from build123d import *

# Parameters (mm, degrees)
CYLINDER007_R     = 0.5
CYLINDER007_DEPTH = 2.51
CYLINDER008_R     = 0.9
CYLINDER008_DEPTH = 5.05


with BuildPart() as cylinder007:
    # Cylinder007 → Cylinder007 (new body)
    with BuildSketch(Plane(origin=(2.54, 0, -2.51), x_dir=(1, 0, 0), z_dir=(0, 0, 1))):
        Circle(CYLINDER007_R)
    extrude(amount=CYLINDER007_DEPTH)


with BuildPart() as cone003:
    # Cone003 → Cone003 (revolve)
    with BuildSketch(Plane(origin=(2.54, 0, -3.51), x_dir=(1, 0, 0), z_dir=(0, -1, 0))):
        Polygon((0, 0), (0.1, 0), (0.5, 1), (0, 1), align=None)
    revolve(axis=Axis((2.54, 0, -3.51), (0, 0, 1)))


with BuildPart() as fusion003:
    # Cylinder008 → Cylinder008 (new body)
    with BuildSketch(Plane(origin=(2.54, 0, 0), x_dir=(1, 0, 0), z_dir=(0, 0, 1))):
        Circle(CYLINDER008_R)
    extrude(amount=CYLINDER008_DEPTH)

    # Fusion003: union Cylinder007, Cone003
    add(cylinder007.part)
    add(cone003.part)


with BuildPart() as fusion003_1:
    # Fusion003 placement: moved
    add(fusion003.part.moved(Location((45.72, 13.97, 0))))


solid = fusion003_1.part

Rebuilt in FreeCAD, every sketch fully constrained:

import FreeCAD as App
import Part
import Sketcher
from FreeCAD import Vector

doc = App.newDocument("Part")
params = doc.addObject("Spreadsheet::Sheet", "Params")
for row, (alias, value) in enumerate([
    ("sketch1_diameter", "1 mm"),
    ("pad1_length", "2.51 mm"),
    ("sketch2_height", "1 mm"),
    ("sketch2_width", "0.1 mm"),
    ("sketch2_width2", "0.5 mm"),
    ("revolution_angle", "360 deg"),
    ("sketch3_diameter", "1.8 mm"),
    ("pad2_length", "5.05 mm"),
], start=1):
    params.set(f"A{row}", alias)
    params.set(f"B{row}", "=" + value)
    params.setAlias(f"B{row}", alias)

body = doc.addObject("PartDesign::Body", "Body")

# Sketch on XY plane
sketch1 = doc.addObject("Sketcher::SketchObject", "Sketch")
body.addObject(sketch1)
sketch1.AttachmentSupport = (doc.XY_Plane, [""])
sketch1.MapMode = "FlatFace"
sketch1.AttachmentOffset = App.Placement(Vector(0, 0, -2.51), App.Rotation())
sketch1.addGeometry(Part.Circle(Vector(2.5, 0, 0), Vector(0, 0, 1), 0.5), False)
sketch1.addConstraint([
    Sketcher.Constraint("PointOnObject", 0, 3, -1),
    Sketcher.Constraint("Diameter", 0, 1.0),
    Sketcher.Constraint("DistanceX", -1, 1, 0, 3, 2.54),
])
sketch1.setExpression("Constraints[1]", "Params.sketch1_diameter")
pad1 = doc.addObject("PartDesign::Pad", "Pad")
body.addObject(pad1)
pad1.Profile = sketch1
pad1.setExpression("Length", "Params.pad1_length")
body2 = doc.addObject("PartDesign::Body", "Body001")

# Sketch on XZ plane
sketch2 = doc.addObject("Sketcher::SketchObject", "Sketch001")
body2.addObject(sketch2)
sketch2.AttachmentSupport = (doc.getObject("XZ_Plane001"), [""])
sketch2.MapMode = "FlatFace"
sketch2.addGeometry([
    Part.LineSegment(Vector(2.54, -3.51, 0), Vector(2.64, -3.51, 0)),
    Part.LineSegment(Vector(2.64, -3.51, 0), Vector(3.04, -2.51, 0)),
    Part.LineSegment(Vector(3.04, -2.51, 0), Vector(2.54, -2.51, 0)),
    Part.LineSegment(Vector(2.54, -2.51, 0), Vector(2.54, -3.51, 0)),
], False)
sketch2.addGeometry(Part.LineSegment(Vector(2.54, -3.51, 0), Vector(2.54, -2.51, 0)), True)  # axis
sketch2.addConstraint([
    Sketcher.Constraint("Coincident", 0, 2, 1, 1),
    Sketcher.Constraint("Coincident", 1, 2, 2, 1),
    Sketcher.Constraint("Coincident", 2, 2, 3, 1),
    Sketcher.Constraint("Coincident", 3, 2, 0, 1),
    Sketcher.Constraint("Horizontal", 0),
    Sketcher.Constraint("Horizontal", 2),
    Sketcher.Constraint("Vertical", 3),
    Sketcher.Constraint("Vertical", 4),
    Sketcher.Constraint("Coincident", 4, 1, 3, 2),
    Sketcher.Constraint("Horizontal", 1, 2, 4, 2),
    Sketcher.Constraint("DistanceY", 3, 2, 3, 1, 1.0),
    Sketcher.Constraint("DistanceX", 0, 1, 0, 2, 0.1),
    Sketcher.Constraint("DistanceX", 2, 2, 2, 1, 0.5),
    Sketcher.Constraint("DistanceX", -1, 1, 0, 2, 2.64),
    Sketcher.Constraint("DistanceY", 0, 2, -1, 1, 3.51),
])
sketch2.setExpression("Constraints[10]", "Params.sketch2_height")
sketch2.setExpression("Constraints[11]", "Params.sketch2_width")
sketch2.setExpression("Constraints[12]", "Params.sketch2_width2")
revolution = doc.addObject("PartDesign::Revolution", "Revolution")
body2.addObject(revolution)
revolution.Profile = sketch2
revolution.ReferenceAxis = (sketch2, ["Axis0"])
revolution.setExpression("Angle", "Params.revolution_angle")
body3 = doc.addObject("PartDesign::Body", "Body002")

# Sketch on XY plane
sketch3 = doc.addObject("Sketcher::SketchObject", "Sketch002")
body3.addObject(sketch3)
sketch3.AttachmentSupport = (doc.getObject("XY_Plane002"), [""])
sketch3.MapMode = "FlatFace"
sketch3.addGeometry(Part.Circle(Vector(2.5, 0, 0), Vector(0, 0, 1), 0.9), False)
sketch3.addConstraint([
    Sketcher.Constraint("PointOnObject", 0, 3, -1),
    Sketcher.Constraint("Diameter", 0, 1.8),
    Sketcher.Constraint("DistanceX", -1, 1, 0, 3, 2.54),
])
sketch3.setExpression("Constraints[1]", "Params.sketch3_diameter")
pad2 = doc.addObject("PartDesign::Pad", "Pad001")
body3.addObject(pad2)
pad2.Profile = sketch3
pad2.setExpression("Length", "Params.pad2_length")
doc.recompute()

boolean = doc.addObject("PartDesign::Boolean", "Boolean")
body3.addObject(boolean)
boolean.Type = "Fuse"
boolean.addObjects([body])
doc.recompute()

boolean2 = doc.addObject("PartDesign::Boolean", "Boolean001")
body3.addObject(boolean2)
boolean2.Type = "Fuse"
boolean2.addObjects([body2])
body4 = doc.addObject("PartDesign::Body", "Body003")
doc.recompute()

body3.Placement = App.Placement(Vector(45.72, 13.97, 0), App.Rotation(Vector(0, 0, 1), 0))
boolean3 = doc.addObject("PartDesign::Boolean", "Boolean002")
body4.addObject(boolean3)
boolean3.Type = "Fuse"
boolean3.addObjects([body3])

doc.recompute()
